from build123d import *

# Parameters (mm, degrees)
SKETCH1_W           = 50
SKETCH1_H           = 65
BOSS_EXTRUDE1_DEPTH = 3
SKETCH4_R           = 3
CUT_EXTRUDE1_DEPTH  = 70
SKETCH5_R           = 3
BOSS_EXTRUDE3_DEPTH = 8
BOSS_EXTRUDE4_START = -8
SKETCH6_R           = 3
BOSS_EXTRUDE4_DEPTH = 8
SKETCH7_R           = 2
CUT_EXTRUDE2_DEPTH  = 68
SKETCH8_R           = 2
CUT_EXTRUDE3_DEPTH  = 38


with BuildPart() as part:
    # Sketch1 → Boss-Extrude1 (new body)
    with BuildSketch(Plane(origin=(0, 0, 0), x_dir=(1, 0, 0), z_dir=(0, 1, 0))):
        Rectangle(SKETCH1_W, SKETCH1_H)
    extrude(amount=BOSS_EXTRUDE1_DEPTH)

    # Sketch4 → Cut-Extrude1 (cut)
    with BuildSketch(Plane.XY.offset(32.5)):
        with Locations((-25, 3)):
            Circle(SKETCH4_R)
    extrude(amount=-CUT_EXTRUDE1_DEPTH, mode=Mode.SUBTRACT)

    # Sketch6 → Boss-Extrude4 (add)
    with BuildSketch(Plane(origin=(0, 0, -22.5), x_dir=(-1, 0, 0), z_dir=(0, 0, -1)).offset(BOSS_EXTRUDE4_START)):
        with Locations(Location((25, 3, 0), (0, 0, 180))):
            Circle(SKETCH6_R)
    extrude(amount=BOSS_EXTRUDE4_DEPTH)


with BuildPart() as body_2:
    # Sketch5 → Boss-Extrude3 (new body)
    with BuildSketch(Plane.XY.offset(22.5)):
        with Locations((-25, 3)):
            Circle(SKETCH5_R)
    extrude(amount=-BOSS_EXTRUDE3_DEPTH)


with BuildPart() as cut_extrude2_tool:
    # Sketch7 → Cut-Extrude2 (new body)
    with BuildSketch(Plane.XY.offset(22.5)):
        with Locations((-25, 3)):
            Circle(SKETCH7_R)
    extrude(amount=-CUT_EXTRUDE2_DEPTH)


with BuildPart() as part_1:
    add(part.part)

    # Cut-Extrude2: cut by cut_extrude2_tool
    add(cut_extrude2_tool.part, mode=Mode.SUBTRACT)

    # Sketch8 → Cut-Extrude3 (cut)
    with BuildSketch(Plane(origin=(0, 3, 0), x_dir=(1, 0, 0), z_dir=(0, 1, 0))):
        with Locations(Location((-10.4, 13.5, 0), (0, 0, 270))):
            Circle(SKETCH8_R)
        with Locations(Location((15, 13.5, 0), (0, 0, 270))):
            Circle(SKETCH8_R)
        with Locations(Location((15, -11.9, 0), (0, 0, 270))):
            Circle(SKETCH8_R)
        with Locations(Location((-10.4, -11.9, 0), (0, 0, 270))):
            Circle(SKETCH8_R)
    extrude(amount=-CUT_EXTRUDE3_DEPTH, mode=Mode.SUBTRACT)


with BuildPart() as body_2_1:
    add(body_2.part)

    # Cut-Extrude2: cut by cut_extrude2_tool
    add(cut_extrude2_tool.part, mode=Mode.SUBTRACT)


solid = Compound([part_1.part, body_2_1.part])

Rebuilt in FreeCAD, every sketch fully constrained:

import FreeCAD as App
import Part
import Sketcher

V = App.Vector


def add_polygon(sketch, points):
    """Adds a closed chain of lines whose ends are joined by coincident constraints."""
    first, n = sketch.GeometryCount, len(points)
    for a, b in zip(points, points[1:] + points[:1]):
        sketch.addGeometry(Part.LineSegment(App.Vector(*a, 0), App.Vector(*b, 0)), False)
    for i in range(n):
        sketch.addConstraint(Sketcher.Constraint("Coincident", first + i, 2, first + (i + 1) % n, 1))

doc = App.newDocument("Part")
body = doc.addObject("PartDesign::Body", "Body")

sketch1 = doc.addObject("Sketcher::SketchObject", "Sketch")
body.addObject(sketch1)
sketch1.AttachmentSupport = (doc.XZ_Plane, [""])
sketch1.MapMode = "FlatFace"
add_polygon(sketch1, [(-25, -32.5), (-25, 32.5), (25, 32.5), (25, -32.5)])
sketch1.addConstraint(Sketcher.Constraint("Vertical", 0))
sketch1.addConstraint(Sketcher.Constraint("Horizontal", 1))
sketch1.addConstraint(Sketcher.Constraint("Vertical", 2))
sketch1.addConstraint(Sketcher.Constraint("Horizontal", 3))
sketch1.addConstraint(Sketcher.Constraint("Symmetric", 0, 2, 2, 2, -1, 1))
sketch1.addConstraint(Sketcher.Constraint("DistanceX", 1, 1, 1, 2, 50.0))
sketch1.addConstraint(Sketcher.Constraint("DistanceY", 0, 1, 0, 2, 65.0))
pad1 = doc.addObject("PartDesign::Pad", "Pad")
body.addObject(pad1)
pad1.Profile = sketch1
pad1.Length = 3
pad1.Reversed = True

sketch2 = doc.addObject("Sketcher::SketchObject", "Sketch001")
body.addObject(sketch2)
sketch2.AttachmentSupport = (doc.XY_Plane, [""])
sketch2.MapMode = "FlatFace"
sketch2.AttachmentOffset = App.Placement(V(0, 0, 32.5), App.Rotation())
sketch2.addGeometry(Part.Circle(V(-25, 3, 0), V(0, 0, 1), 3), False)
sketch2.addConstraint(Sketcher.Constraint("Diameter", 0, 6.0))
sketch2.addConstraint(Sketcher.Constraint("DistanceX", 0, 3, -1, 1, 25.0))
sketch2.addConstraint(Sketcher.Constraint("DistanceY", -1, 1, 0, 3, 3.0))
pocket1 = doc.addObject("PartDesign::Pocket", "Pocket")
body.addObject(pocket1)
pocket1.Profile = sketch2
pocket1.Length = 70

sketch3 = doc.addObject("Sketcher::SketchObject", "Sketch002")
body.addObject(sketch3)
sketch3.AttachmentSupport = (doc.XY_Plane, [""])
sketch3.MapMode = "FlatFace"
sketch3.AttachmentOffset = App.Placement(V(0, 0, -14.5), App.Rotation())
sketch3.addGeometry(Part.Circle(V(-25, 3, 0), V(0, 0, 1), 3), False)
sketch3.addConstraint(Sketcher.Constraint("Diameter", 0, 6.0))
sketch3.addConstraint(Sketcher.Constraint("DistanceX", 0, 3, -1, 1, 25.0))
sketch3.addConstraint(Sketcher.Constraint("DistanceY", -1, 1, 0, 3, 3.0))
pad2 = doc.addObject("PartDesign::Pad", "Pad001")
body.addObject(pad2)
pad2.Profile = sketch3
pad2.Length = 8
pad2.Reversed = True
body2 = doc.addObject("PartDesign::Body", "Body001")

sketch4 = doc.addObject("Sketcher::SketchObject", "Sketch003")
body2.addObject(sketch4)
sketch4.AttachmentSupport = (doc.getObject("XY_Plane001"), [""])
sketch4.MapMode = "FlatFace"
sketch4.AttachmentOffset = App.Placement(V(0, 0, 22.5), App.Rotation())
sketch4.addGeometry(Part.Circle(V(-25, 3, 0), V(0, 0, 1), 3), False)
sketch4.addConstraint(Sketcher.Constraint("Diameter", 0, 6.0))
sketch4.addConstraint(Sketcher.Constraint("DistanceX", 0, 3, -1, 1, 25.0))
sketch4.addConstraint(Sketcher.Constraint("DistanceY", -1, 1, 0, 3, 3.0))
pad3 = doc.addObject("PartDesign::Pad", "Pad002")
body2.addObject(pad3)
pad3.Profile = sketch4
pad3.Length = 8
pad3.Reversed = True
body3 = doc.addObject("PartDesign::Body", "Body002")

sketch5 = doc.addObject("Sketcher::SketchObject", "Sketch004")
body3.addObject(sketch5)
sketch5.AttachmentSupport = (doc.getObject("XY_Plane002"), [""])
sketch5.MapMode = "FlatFace"
sketch5.AttachmentOffset = App.Placement(V(0, 0, 22.5), App.Rotation())
sketch5.addGeometry(Part.Circle(V(-25, 3, 0), V(0, 0, 1), 2), False)
sketch5.addConstraint(Sketcher.Constraint("Diameter", 0, 4.0))
sketch5.addConstraint(Sketcher.Constraint("DistanceX", 0, 3, -1, 1, 25.0))
sketch5.addConstraint(Sketcher.Constraint("DistanceY", -1, 1, 0, 3, 3.0))
pad4 = doc.addObject("PartDesign::Pad", "Pad003")
body3.addObject(pad4)
pad4.Profile = sketch5
pad4.Length = 68
pad4.Reversed = True
doc.recompute()

body4 = doc.addObject("PartDesign::Body", "Body003")
body4.BaseFeature = body3
boolean = doc.addObject("PartDesign::Boolean", "Boolean")
body.addObject(boolean)
boolean.Type = "Cut"
boolean.addObjects([body4])
doc.recompute()

sketch6 = doc.addObject("Sketcher::SketchObject", "Sketch005")
body.addObject(sketch6)
sketch6.AttachmentSupport = (doc.XZ_Plane, [""])
sketch6.MapMode = "FlatFace"
sketch6.AttachmentOffset = App.Placement(V(0, 0, -3), App.Rotation())
sketch6.addGeometry(Part.Circle(V(-10.4, -13.5, 0), V(0, 0, 1), 2), False)
sketch6.addGeometry(Part.Circle(V(15, -13.5, 0), V(0, 0, 1), 2), False)
sketch6.addGeometry(Part.Circle(V(15, 11.9, 0), V(0, 0, 1), 2), False)
sketch6.addGeometry(Part.Circle(V(-10.4, 11.9, 0), V(0, 0, 1), 2), False)
sketch6.addConstraint(Sketcher.Constraint("Equal", 0, 1))
sketch6.addConstraint(Sketcher.Constraint("Equal", 1, 2))
sketch6.addConstraint(Sketcher.Constraint("Equal", 2, 3))
sketch6.addConstraint(Sketcher.Constraint("Horizontal", 0, 3, 1, 3))
sketch6.addConstraint(Sketcher.Constraint("Horizontal", 2, 3, 3, 3))
sketch6.addConstraint(Sketcher.Constraint("Vertical", 1, 3, 2, 3))
sketch6.addConstraint(Sketcher.Constraint("Vertical", 0, 3, 3, 3))
sketch6.addConstraint(Sketcher.Constraint("Diameter", 0, 4.0))
sketch6.addConstraint(Sketcher.Constraint("DistanceX", -1, 1, 1, 3, 15.0))
sketch6.addConstraint(Sketcher.Constraint("DistanceX", 0, 3, -1, 1, 10.4))
sketch6.addConstraint(Sketcher.Constraint("DistanceY", 0, 3, -1, 1, 13.5))
sketch6.addConstraint(Sketcher.Constraint("DistanceY", -1, 1, 2, 3, 11.9))
pocket2 = doc.addObject("PartDesign::Pocket", "Pocket001")
body.addObject(pocket2)
pocket2.Profile = sketch6
pocket2.Length = 38
pocket2.Reversed = True
doc.recompute()

boolean2 = doc.addObject("PartDesign::Boolean", "Boolean001")
body2.addObject(boolean2)
boolean2.Type = "Cut"
boolean2.addObjects([body3])

doc.recompute()
